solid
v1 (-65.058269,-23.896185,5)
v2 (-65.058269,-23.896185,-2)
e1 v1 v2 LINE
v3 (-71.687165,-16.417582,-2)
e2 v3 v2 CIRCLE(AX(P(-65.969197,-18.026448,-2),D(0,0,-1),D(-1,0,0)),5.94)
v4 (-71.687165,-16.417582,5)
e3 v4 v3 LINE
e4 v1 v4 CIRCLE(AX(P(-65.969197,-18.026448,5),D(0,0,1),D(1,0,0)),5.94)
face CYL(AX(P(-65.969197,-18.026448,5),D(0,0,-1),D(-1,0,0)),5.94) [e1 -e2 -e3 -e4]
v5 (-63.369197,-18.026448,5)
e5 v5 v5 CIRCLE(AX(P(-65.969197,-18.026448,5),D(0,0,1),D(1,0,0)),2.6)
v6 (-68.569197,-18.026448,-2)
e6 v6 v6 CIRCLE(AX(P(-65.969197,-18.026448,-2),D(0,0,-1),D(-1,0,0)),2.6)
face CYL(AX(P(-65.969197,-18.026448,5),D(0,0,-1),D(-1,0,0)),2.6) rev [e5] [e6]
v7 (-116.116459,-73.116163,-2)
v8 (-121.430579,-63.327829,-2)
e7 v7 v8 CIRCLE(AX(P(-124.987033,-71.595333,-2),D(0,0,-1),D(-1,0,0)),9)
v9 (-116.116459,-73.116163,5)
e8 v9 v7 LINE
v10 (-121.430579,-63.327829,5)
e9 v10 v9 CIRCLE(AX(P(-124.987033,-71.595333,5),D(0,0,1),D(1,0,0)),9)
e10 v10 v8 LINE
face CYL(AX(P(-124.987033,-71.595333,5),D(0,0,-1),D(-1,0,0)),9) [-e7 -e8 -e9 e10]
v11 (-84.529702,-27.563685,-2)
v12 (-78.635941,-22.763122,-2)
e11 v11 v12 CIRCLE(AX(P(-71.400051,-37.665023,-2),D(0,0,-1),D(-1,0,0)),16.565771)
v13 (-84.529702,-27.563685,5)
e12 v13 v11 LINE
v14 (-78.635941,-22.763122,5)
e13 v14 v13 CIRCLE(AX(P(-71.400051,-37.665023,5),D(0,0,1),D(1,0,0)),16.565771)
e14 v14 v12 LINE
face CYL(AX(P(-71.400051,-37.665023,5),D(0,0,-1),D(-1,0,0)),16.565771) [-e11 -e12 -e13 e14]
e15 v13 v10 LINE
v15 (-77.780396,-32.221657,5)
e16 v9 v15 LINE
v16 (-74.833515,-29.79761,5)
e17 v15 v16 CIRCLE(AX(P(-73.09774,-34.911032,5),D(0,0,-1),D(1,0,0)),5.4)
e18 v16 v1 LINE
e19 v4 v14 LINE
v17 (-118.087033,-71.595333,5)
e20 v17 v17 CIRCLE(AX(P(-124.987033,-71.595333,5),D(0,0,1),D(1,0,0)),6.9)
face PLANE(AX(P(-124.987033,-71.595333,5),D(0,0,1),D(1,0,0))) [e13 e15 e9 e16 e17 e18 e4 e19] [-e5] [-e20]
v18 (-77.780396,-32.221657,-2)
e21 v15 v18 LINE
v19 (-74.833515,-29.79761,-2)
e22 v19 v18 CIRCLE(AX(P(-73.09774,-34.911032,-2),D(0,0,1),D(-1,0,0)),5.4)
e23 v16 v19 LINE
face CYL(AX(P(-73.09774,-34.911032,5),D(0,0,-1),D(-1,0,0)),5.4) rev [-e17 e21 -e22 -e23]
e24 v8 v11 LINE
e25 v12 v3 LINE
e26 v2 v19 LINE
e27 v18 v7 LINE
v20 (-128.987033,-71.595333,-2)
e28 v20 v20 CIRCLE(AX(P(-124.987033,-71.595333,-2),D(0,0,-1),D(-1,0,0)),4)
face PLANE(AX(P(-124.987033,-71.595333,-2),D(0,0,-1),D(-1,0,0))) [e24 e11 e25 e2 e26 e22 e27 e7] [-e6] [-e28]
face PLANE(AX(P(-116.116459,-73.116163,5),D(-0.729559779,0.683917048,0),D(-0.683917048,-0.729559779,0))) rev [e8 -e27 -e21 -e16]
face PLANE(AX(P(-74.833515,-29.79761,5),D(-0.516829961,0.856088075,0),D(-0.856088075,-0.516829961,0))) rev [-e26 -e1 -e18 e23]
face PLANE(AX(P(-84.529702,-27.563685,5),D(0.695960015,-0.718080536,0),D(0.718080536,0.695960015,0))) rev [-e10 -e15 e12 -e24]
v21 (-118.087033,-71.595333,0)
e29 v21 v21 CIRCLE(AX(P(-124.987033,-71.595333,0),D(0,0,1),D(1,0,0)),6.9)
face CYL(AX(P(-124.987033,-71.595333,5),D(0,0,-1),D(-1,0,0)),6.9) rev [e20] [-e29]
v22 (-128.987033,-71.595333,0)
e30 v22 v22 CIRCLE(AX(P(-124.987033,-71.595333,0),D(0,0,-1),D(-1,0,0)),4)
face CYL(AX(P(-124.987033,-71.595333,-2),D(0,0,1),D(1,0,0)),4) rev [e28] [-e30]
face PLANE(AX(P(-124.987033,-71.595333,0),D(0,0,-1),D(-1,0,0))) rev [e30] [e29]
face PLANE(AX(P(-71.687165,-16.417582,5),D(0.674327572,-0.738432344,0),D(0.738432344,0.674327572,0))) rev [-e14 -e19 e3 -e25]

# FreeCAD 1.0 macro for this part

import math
import FreeCAD as App
import Part
import Sketcher
Q = App.Units.Quantity

doc = App.newDocument("Part")
body = doc.addObject("PartDesign::Body", "Body")

# Sketch on XY plane
sketch1 = body.newObject("Sketcher::SketchObject", "Sketch")
sketch1.AttachmentSupport = (doc.getObject("XY_Plane"), [""])
sketch1.MapMode = "FlatFace"
sketch1.addGeometry([
    Part.LineSegment(App.Vector(-116.116459, -73.116163, 0), App.Vector(-77.780396, -32.221657, 0)),  # 0
    Part.ArcOfCircle(Part.Circle(App.Vector(-73.09774, -34.911032, 0), App.Vector(0, 0, 1), 5.4), math.radians(108.750022), math.radians(150.130084)),  # 1
    Part.LineSegment(App.Vector(-74.833515, -29.79761, 0), App.Vector(-65.058269, -23.896185, 0)),  # 2
    Part.ArcOfCircle(Part.Circle(App.Vector(-65.969197, -18.026448, 0), App.Vector(0, 0, 1), 5.94), math.radians(-81.178603), math.radians(164.284983)),  # 3
    Part.LineSegment(App.Vector(-71.687165, -16.417582, 0), App.Vector(-78.635941, -22.763122, 0)),  # 4
    Part.ArcOfCircle(Part.Circle(App.Vector(-71.400051, -37.665023, 0), App.Vector(0, 0, 1), 16.565771), math.radians(115.899739), math.radians(142.427004)),  # 5
    Part.LineSegment(App.Vector(-84.529702, -27.563685, 0), App.Vector(-121.430579, -63.327829, 0)),  # 6
    Part.ArcOfCircle(Part.Circle(App.Vector(-124.987033, -71.595333, 0), App.Vector(0, 0, 1), 9), math.radians(66.723952), math.radians(350.271416)),  # 7
    Part.Circle(App.Vector(-124.987033, -71.595333, 0), App.Vector(0, 0, 1), 6.9),  # 8
    Part.Circle(App.Vector(-65.969197, -18.026448, 0), App.Vector(0, 0, 1), 2.6),  # 9
], False)
sketch1.addConstraint([
    Sketcher.Constraint("Coincident", 0, 2, 1, 2),
    Sketcher.Constraint("Coincident", 1, 1, 2, 1),
    Sketcher.Constraint("Coincident", 2, 2, 3, 1),
    Sketcher.Constraint("Coincident", 3, 2, 4, 1),
    Sketcher.Constraint("Coincident", 4, 2, 5, 1),
    Sketcher.Constraint("Coincident", 5, 2, 6, 1),
    Sketcher.Constraint("Coincident", 6, 2, 7, 1),
    Sketcher.Constraint("Coincident", 7, 2, 0, 1),
    Sketcher.Constraint("Coincident", 8, 3, 7, 3),
    Sketcher.Constraint("Coincident", 9, 3, 3, 3),
    Sketcher.Constraint("Radius", 7, Q("9 mm")),
    Sketcher.Constraint("Diameter", 8, Q("13.8 mm")),
    Sketcher.Constraint("Diameter", 9, Q("5.2 mm")),
    Sketcher.Constraint("Radius", 1, Q("5.4 mm")),
    Sketcher.Constraint("Radius", 3, Q("5.94 mm")),
    Sketcher.Constraint("Radius", 5, Q("16.565771 mm")),
    Sketcher.Constraint("DistanceX", 5, 2, -1, 1, Q("84.529702 mm")),
    Sketcher.Constraint("DistanceY", 7, 3, 1, 3, Q("36.684301 mm")),
    Sketcher.Constraint("DistanceX", 0, 2, 3, 3, Q("11.811198 mm")),
    Sketcher.Constraint("DistanceX", 4, 2, 1, 3, Q("5.538201 mm")),
    Sketcher.Constraint("DistanceX", 1, 3, -1, 1, Q("73.09774 mm")),
    Sketcher.Constraint("DistanceX", 5, 3, -1, 1, Q("71.400051 mm")),
    Sketcher.Constraint("DistanceY", 1, 1, -1, 1, Q("29.79761 mm")),
    Sketcher.Constraint("DistanceX", 2, 2, -1, 1, Q("65.058269 mm")),
    Sketcher.Constraint("DistanceX", 6, 2, -1, 1, Q("121.430579 mm")),
    Sketcher.Constraint("DistanceY", 6, 2, -1, 1, Q("63.327829 mm")),
    Sketcher.Constraint("DistanceX", 7, 2, -1, 1, Q("116.116459 mm")),
    Sketcher.Constraint("DistanceY", 5, 3, 1, 3, Q("2.753991 mm")),
    Sketcher.Constraint("DistanceY", 0, 2, 3, 3, Q("14.195209 mm")),
    Sketcher.Constraint("DistanceX", 0, 2, 1, 1, Q("2.94688 mm")),
    Sketcher.Constraint("DistanceY", 5, 3, 2, 2, Q("13.768838 mm")),
    Sketcher.Constraint("DistanceX", 1, 1, 3, 2, Q("3.146351 mm")),
])
pad1 = body.newObject("PartDesign::Pad", "Pad")
pad1.Profile = sketch1
pad1.Length = 5

# Sketch on XY plane
sketch2 = body.newObject("Sketcher::SketchObject", "Sketch001")
sketch2.AttachmentSupport = (doc.getObject("XY_Plane"), [""])
sketch2.MapMode = "FlatFace"
sketch2.AttachmentOffset = App.Placement(App.Vector(0, 0, -2), App.Rotation())
sketch2.addGeometry([
    Part.LineSegment(App.Vector(-121.430579, -63.327829, 0), App.Vector(-84.529702, -27.563685, 0)),  # 0
    Part.ArcOfCircle(Part.Circle(App.Vector(-71.400051, -37.665023, 0), App.Vector(0, 0, 1), 16.565771), math.radians(115.899739), math.radians(142.427004)),  # 1
    Part.LineSegment(App.Vector(-78.635941, -22.763122, 0), App.Vector(-71.687165, -16.417582, 0)),  # 2
    Part.ArcOfCircle(Part.Circle(App.Vector(-65.969197, -18.026448, 0), App.Vector(0, 0, 1), 5.94), math.radians(-81.178603), math.radians(164.284983)),  # 3
    Part.LineSegment(App.Vector(-65.058269, -23.896185, 0), App.Vector(-74.833515, -29.79761, 0)),  # 4
    Part.ArcOfCircle(Part.Circle(App.Vector(-73.09774, -34.911032, 0), App.Vector(0, 0, 1), 5.4), math.radians(108.750022), math.radians(150.130084)),  # 5
    Part.LineSegment(App.Vector(-77.780396, -32.221657, 0), App.Vector(-116.116459, -73.116163, 0)),  # 6
    Part.ArcOfCircle(Part.Circle(App.Vector(-124.987033, -71.595333, 0), App.Vector(0, 0, 1), 9), math.radians(66.723952), math.radians(350.271416)),  # 7
    Part.Circle(App.Vector(-124.987033, -71.595333, 0), App.Vector(0, 0, 1), 4),  # 8
    Part.Circle(App.Vector(-65.969197, -18.026448, 0), App.Vector(0, 0, 1), 2.6),  # 9
], False)
sketch2.addConstraint([
    Sketcher.Constraint("Coincident", 0, 2, 1, 2),
    Sketcher.Constraint("Coincident", 1, 1, 2, 1),
    Sketcher.Constraint("Coincident", 2, 2, 3, 2),
    Sketcher.Constraint("Coincident", 3, 1, 4, 1),
    Sketcher.Constraint("Coincident", 4, 2, 5, 1),
    Sketcher.Constraint("Coincident", 5, 2, 6, 1),
    Sketcher.Constraint("Coincident", 6, 2, 7, 2),
    Sketcher.Constraint("Coincident", 7, 1, 0, 1),
    Sketcher.Constraint("Coincident", 8, 3, 7, 3),
    Sketcher.Constraint("Coincident", 9, 3, 3, 3),
    Sketcher.Constraint("Diameter", 8, Q("8 mm")),
    Sketcher.Constraint("Radius", 7, Q("9 mm")),
    Sketcher.Constraint("Diameter", 9, Q("5.2 mm")),
    Sketcher.Constraint("Radius", 5, Q("5.4 mm")),
    Sketcher.Constraint("Radius", 3, Q("5.94 mm")),
    Sketcher.Constraint("Radius", 1, Q("16.565771 mm")),
    Sketcher.Constraint("DistanceX", 0, 2, -1, 1, Q("84.529702 mm")),
    Sketcher.Constraint("DistanceY", 7, 3, 5, 3, Q("36.684301 mm")),
    Sketcher.Constraint("DistanceX", 1, 1, 5, 3, Q("5.538201 mm")),
    Sketcher.Constraint("DistanceY", 1, 3, 1, 1, Q("14.901901 mm")),
    Sketcher.Constraint("DistanceX", 1, 3, -1, 1, Q("71.400051 mm")),
    Sketcher.Constraint("DistanceX", 3, 1, -1, 1, Q("65.058269 mm")),
    Sketcher.Constraint("DistanceY", 4, 2, -1, 1, Q("29.79761 mm")),
    Sketcher.Constraint("DistanceX", 6, 2, -1, 1, Q("116.116459 mm")),
    Sketcher.Constraint("DistanceX", 7, 1, -1, 1, Q("121.430579 mm")),
    Sketcher.Constraint("DistanceY", 7, 1, -1, 1, Q("63.327829 mm")),
    Sketcher.Constraint("DistanceY", 1, 3, 5, 3, Q("2.753991 mm")),
    Sketcher.Constraint("DistanceX", 7, 3, 0, 2, Q("40.457331 mm")),
    Sketcher.Constraint("DistanceY", 1, 1, 2, 2, Q("6.34554 mm")),
    Sketcher.Constraint("DistanceX", 5, 2, 4, 2, Q("2.94688 mm")),
    Sketcher.Constraint("Distance", 2, Q("9.410174 mm")),
    Sketcher.Constraint("Distance", 4, Q("11.418505 mm")),
])
pad2 = body.newObject("PartDesign::Pad", "Pad001")
pad2.Profile = sketch2
pad2.Length = 2

doc.recompute()
